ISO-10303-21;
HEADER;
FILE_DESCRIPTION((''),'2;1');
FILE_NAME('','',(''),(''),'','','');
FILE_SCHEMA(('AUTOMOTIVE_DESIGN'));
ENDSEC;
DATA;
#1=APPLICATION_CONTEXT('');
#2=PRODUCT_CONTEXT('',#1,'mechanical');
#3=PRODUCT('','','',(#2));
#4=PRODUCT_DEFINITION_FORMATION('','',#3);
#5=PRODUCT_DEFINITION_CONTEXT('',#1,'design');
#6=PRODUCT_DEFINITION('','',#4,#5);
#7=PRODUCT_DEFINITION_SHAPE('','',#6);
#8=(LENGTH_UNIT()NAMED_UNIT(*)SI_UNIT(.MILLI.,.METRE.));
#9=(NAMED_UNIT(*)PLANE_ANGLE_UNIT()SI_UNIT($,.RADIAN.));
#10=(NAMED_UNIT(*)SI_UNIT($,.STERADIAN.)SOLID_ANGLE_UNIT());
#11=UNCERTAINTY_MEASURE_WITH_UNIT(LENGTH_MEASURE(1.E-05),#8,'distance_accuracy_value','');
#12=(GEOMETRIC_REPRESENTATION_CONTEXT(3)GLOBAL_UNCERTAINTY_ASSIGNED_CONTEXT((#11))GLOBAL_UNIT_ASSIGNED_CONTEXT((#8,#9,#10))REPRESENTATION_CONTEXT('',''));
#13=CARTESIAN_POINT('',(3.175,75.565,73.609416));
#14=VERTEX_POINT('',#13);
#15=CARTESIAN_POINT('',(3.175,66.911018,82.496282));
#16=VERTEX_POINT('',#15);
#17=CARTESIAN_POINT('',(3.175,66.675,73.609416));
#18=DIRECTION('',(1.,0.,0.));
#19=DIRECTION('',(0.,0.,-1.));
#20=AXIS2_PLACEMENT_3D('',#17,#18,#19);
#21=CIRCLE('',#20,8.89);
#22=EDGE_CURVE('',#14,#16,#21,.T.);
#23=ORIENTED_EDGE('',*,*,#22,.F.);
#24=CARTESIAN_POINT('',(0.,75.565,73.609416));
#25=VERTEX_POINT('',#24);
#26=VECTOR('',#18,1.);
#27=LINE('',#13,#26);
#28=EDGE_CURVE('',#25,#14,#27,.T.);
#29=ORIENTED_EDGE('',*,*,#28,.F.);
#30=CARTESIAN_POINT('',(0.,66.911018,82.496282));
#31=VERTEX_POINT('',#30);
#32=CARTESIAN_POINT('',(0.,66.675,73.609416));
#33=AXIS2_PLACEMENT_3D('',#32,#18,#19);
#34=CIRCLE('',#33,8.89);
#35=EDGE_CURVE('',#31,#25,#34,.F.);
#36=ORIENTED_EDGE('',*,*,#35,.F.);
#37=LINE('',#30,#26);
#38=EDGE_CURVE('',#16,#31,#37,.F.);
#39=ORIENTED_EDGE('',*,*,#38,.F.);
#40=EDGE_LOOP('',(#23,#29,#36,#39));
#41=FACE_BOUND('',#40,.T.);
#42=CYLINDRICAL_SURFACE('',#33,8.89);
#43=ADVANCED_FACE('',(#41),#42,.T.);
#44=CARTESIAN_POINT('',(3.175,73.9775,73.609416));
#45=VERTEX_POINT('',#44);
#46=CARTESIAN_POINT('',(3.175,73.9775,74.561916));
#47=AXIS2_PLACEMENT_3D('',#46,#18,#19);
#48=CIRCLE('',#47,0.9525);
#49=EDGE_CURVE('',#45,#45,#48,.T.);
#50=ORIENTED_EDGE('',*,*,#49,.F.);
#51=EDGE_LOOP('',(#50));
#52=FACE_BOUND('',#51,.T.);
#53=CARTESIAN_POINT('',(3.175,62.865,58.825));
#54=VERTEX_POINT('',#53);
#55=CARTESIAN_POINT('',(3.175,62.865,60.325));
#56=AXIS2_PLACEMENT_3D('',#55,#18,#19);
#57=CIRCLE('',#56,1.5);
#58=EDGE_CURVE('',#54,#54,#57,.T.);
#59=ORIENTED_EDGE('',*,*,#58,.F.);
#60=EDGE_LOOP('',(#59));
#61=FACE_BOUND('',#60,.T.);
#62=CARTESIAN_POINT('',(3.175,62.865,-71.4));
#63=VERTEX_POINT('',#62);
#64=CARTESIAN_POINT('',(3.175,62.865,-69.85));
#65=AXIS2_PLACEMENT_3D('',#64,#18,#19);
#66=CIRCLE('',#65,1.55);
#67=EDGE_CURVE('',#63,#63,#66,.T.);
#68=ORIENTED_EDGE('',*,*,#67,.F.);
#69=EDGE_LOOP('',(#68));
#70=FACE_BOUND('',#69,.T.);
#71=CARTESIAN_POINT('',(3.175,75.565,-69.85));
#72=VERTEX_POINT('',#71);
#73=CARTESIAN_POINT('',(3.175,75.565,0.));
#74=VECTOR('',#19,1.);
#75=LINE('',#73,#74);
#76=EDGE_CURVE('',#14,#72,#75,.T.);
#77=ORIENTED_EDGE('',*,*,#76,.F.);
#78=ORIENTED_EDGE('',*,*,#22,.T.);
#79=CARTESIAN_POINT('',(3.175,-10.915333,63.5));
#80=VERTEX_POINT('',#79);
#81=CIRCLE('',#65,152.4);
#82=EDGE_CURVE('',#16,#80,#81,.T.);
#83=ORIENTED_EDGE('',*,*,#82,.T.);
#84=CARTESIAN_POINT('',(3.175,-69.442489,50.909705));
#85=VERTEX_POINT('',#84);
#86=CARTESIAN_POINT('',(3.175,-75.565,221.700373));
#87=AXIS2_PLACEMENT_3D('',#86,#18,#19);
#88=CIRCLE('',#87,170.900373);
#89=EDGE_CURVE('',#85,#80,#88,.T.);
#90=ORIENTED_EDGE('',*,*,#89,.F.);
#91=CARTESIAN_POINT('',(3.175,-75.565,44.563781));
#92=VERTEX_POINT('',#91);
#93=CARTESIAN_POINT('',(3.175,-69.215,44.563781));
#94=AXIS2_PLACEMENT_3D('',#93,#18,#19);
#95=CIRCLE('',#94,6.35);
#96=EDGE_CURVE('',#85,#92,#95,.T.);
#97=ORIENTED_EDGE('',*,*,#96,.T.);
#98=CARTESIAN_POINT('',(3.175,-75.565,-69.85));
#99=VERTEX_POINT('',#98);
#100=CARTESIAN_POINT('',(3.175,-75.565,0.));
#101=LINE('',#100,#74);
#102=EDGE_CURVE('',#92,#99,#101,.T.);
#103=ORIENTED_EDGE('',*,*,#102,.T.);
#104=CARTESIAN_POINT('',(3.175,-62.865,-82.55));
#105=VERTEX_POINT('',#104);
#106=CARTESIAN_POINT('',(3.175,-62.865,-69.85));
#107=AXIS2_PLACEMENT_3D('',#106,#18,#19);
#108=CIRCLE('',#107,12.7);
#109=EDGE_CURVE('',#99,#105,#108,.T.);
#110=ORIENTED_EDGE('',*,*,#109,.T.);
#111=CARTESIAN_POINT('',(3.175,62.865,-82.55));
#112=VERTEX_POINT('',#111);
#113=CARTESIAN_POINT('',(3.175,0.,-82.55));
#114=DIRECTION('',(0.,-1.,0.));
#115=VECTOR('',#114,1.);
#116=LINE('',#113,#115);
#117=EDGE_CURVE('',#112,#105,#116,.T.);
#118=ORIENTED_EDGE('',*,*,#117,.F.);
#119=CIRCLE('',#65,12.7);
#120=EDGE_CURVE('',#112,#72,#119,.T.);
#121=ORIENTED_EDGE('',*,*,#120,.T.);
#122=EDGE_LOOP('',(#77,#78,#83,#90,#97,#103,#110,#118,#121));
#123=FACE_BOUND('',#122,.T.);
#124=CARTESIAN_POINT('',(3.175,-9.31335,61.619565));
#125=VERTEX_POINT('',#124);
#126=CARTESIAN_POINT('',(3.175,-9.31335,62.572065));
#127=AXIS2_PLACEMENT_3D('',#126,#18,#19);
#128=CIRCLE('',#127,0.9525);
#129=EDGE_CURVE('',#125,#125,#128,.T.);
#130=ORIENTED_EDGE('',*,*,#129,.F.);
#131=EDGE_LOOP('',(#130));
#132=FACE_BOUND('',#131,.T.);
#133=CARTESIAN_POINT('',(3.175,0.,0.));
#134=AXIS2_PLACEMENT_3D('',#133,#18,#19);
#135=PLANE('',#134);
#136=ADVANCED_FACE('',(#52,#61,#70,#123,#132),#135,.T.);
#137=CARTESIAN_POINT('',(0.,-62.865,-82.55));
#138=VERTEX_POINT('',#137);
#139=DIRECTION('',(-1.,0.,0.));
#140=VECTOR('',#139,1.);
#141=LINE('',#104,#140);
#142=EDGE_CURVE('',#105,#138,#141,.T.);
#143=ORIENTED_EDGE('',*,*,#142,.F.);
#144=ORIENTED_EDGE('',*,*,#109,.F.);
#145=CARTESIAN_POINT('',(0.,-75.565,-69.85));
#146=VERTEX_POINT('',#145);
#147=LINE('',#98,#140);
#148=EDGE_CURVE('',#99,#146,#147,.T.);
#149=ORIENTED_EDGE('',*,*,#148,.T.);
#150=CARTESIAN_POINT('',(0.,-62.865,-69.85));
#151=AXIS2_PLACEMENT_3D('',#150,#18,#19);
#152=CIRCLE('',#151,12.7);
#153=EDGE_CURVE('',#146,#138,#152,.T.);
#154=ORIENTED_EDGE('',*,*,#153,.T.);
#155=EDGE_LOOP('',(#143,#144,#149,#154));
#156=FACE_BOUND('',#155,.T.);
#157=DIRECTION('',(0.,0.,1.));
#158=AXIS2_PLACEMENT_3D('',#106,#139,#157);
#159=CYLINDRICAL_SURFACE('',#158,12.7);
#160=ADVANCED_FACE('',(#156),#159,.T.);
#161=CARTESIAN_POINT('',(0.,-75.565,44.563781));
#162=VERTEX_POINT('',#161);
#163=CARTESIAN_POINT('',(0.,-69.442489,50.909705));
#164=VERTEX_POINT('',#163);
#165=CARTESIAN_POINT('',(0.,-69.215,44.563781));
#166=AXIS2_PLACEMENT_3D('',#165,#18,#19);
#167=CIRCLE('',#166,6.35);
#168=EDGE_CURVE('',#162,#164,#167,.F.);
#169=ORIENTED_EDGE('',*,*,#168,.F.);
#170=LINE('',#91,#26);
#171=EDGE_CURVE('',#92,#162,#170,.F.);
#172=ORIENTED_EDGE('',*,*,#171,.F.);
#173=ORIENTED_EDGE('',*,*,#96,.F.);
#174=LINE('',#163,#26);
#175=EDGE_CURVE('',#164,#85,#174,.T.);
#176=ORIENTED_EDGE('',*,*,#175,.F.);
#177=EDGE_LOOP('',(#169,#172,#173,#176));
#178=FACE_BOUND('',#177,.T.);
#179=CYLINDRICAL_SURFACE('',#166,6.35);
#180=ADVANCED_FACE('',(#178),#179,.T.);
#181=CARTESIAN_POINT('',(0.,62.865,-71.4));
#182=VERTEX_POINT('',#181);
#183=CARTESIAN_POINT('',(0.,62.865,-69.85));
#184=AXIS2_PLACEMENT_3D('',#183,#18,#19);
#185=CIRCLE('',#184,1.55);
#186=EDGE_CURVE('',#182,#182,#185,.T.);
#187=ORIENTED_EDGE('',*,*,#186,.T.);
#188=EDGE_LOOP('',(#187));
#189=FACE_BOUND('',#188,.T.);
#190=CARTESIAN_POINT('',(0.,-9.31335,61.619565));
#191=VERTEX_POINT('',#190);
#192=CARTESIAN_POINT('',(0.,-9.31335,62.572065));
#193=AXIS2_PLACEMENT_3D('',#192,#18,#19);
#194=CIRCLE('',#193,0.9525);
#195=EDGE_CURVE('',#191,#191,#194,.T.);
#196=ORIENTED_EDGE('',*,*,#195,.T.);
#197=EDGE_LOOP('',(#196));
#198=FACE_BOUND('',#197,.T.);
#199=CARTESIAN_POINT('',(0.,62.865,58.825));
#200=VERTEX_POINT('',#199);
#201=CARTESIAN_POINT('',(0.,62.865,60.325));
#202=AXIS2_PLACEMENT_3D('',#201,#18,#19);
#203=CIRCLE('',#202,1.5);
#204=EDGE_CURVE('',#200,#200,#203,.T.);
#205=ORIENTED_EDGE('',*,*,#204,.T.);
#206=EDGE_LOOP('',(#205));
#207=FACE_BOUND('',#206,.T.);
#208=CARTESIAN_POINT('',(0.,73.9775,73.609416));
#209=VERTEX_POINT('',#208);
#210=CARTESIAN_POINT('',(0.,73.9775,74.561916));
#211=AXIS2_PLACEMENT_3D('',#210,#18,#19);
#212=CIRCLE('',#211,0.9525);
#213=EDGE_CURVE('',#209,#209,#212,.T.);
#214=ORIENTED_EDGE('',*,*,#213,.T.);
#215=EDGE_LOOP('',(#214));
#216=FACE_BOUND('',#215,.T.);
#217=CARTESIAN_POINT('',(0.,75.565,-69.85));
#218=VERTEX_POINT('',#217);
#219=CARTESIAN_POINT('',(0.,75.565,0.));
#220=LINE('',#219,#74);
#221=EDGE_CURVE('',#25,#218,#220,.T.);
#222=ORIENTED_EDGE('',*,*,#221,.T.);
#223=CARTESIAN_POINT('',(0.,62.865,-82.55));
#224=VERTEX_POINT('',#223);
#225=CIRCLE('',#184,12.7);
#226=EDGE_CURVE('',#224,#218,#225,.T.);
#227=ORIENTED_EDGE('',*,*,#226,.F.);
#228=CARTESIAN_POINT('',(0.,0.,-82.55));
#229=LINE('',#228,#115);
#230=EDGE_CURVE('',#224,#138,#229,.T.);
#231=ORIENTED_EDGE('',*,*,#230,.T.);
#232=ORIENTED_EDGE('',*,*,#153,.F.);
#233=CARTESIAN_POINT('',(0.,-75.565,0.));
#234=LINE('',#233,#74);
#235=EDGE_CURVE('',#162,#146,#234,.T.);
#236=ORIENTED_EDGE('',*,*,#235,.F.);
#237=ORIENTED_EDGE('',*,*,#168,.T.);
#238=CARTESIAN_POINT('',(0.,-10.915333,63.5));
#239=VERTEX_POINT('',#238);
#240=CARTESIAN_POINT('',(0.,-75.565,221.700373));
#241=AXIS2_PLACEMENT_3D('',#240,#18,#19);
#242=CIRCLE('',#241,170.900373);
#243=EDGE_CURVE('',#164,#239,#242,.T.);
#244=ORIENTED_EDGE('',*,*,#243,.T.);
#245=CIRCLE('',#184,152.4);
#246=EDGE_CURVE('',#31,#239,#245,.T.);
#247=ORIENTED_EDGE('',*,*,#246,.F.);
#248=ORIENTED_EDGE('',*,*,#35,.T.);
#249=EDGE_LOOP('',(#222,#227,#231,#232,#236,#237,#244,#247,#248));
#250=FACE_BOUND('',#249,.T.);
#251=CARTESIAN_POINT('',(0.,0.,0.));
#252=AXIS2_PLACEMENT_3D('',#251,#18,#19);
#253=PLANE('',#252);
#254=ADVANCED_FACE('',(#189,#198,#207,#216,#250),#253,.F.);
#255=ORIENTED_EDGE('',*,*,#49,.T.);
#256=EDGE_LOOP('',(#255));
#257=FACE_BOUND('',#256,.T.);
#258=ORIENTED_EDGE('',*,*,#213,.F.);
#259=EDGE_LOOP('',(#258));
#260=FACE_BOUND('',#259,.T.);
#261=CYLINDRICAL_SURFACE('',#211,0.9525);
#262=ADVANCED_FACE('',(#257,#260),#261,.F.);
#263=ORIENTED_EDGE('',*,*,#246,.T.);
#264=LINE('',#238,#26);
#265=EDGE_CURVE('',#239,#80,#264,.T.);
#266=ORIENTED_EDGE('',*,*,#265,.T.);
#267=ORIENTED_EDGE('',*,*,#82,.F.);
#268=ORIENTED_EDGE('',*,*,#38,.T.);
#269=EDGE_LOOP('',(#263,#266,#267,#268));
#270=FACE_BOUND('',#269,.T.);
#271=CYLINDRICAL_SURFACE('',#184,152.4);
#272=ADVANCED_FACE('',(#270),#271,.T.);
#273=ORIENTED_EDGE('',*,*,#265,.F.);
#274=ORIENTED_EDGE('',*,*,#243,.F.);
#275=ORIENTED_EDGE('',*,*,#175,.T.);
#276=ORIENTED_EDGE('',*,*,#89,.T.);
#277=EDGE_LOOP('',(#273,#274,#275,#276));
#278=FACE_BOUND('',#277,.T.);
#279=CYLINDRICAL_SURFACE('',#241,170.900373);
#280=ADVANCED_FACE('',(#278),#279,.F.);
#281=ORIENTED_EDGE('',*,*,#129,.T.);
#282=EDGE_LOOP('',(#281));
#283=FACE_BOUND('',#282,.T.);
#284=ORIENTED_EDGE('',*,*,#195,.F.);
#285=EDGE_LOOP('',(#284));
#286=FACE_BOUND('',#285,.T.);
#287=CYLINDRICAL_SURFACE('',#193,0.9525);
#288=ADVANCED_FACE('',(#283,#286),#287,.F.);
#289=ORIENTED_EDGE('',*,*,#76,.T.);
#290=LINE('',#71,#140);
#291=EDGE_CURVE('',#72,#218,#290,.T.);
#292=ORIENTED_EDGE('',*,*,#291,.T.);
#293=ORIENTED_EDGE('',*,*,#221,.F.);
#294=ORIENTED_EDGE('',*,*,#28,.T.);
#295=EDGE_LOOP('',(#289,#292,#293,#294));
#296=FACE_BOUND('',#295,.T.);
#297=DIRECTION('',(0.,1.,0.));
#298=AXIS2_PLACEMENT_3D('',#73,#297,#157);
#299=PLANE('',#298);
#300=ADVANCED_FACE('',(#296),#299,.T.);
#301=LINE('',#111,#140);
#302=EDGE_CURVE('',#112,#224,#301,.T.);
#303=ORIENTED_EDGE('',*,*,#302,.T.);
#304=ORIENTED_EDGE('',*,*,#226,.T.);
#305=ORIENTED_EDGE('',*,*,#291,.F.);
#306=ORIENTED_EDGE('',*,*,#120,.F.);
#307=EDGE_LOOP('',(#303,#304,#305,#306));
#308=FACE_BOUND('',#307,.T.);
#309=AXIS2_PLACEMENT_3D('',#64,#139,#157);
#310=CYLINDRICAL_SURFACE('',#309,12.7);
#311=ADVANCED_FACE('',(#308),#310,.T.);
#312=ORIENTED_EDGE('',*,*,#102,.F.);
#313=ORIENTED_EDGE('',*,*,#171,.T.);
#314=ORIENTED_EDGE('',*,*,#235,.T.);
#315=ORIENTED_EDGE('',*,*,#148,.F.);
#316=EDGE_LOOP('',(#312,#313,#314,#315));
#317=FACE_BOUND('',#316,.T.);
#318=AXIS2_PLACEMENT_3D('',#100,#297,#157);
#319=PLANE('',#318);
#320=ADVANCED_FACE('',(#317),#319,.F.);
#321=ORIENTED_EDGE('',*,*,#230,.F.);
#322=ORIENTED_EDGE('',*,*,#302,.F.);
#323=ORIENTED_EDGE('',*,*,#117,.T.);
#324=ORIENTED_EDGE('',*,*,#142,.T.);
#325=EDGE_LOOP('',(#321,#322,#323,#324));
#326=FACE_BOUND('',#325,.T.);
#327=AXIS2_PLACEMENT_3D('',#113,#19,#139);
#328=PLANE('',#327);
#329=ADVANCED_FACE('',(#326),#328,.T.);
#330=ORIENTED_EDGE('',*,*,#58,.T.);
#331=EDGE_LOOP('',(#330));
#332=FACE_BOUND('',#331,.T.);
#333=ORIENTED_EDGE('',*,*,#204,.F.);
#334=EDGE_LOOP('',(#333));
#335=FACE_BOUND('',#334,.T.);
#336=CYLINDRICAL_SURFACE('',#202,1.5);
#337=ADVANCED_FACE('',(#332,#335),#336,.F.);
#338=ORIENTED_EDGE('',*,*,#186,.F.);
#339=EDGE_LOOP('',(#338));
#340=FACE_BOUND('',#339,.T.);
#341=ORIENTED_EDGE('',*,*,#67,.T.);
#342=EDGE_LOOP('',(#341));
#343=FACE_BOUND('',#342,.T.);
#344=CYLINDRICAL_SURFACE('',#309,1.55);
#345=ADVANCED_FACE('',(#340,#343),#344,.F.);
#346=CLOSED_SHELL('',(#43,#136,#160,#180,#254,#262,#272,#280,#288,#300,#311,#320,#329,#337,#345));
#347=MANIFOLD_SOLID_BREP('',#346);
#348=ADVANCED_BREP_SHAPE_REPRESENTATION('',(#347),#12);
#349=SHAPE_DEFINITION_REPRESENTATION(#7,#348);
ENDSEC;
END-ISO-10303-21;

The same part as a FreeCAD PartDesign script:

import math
import FreeCAD as App
import Part
import Sketcher
Q = App.Units.Quantity


def edges_at(feature, points):
    """Names of the edges that pass closest to the given points."""
    edges = feature.Shape.Edges
    near = lambda p: min(range(len(edges)), key=lambda i: edges[i].distToShape(Part.Vertex(*p))[0])
    return sorted({f"Edge{near(p) + 1}" for p in points})

doc = App.newDocument("Part")
body = doc.addObject("PartDesign::Body", "Body")

# Sketch on YZ plane
sketch1 = doc.addObject("Sketcher::SketchObject", "Sketch")
body.addObject(sketch1)
sketch1.AttachmentSupport = (doc.YZ_Plane, [""])
sketch1.MapMode = "FlatFace"
sketch1.addGeometry([
    Part.LineSegment(App.Vector(75.6, -69.8, 0), App.Vector(75.6, 82.5, 0)),  # 0
    Part.LineSegment(App.Vector(75.6, 82.5, 0), App.Vector(-75.6, 82.5, 0)),  # 1
    Part.LineSegment(App.Vector(-75.6, 82.5, 0), App.Vector(-75.6, -69.8, 0)),  # 2
    Part.ArcOfCircle(Part.Circle(App.Vector(-62.9, -69.8, 0), App.Vector(0, 0, 1), 12.7), math.radians(180), math.radians(270)),  # 3
    Part.LineSegment(App.Vector(-62.9, -82.5, 0), App.Vector(62.9, -82.5, 0)),  # 4
    Part.ArcOfCircle(Part.Circle(App.Vector(62.9, -69.8, 0), App.Vector(0, 0, 1), 12.7), math.radians(-90), math.radians(0)),  # 5
    Part.Circle(App.Vector(62.9, -69.8, 0), App.Vector(0, 0, 1), 1.6),  # 6
], False)
sketch1.addConstraint([
    Sketcher.Constraint("Coincident", 0, 2, 1, 1),
    Sketcher.Constraint("Coincident", 1, 2, 2, 1),
    Sketcher.Constraint("Tangent", 2, 2, 3, 1),
    Sketcher.Constraint("Tangent", 3, 2, 4, 1),
    Sketcher.Constraint("Tangent", 4, 2, 5, 1),
    Sketcher.Constraint("Tangent", 5, 2, 0, 1),
    Sketcher.Constraint("Vertical", 0),
    Sketcher.Constraint("Horizontal", 1),
    Sketcher.Constraint("Vertical", 2),
    Sketcher.Constraint("Horizontal", 4),
    Sketcher.Constraint("Coincident", 6, 3, 5, 3),
    Sketcher.Constraint("Equal", 3, 5),
    Sketcher.Constraint("Radius", 3, Q("0.5 in")),
    Sketcher.Constraint("DistanceY", 0, 1, 0, 2, Q("6 in")),
    Sketcher.Constraint("DistanceX", 1, 2, 1, 1, Q("5.95 in")),
    Sketcher.Constraint("Diameter", 6, 3.1),
    Sketcher.Constraint("DistanceY", 3, 3, -1, 1, Q("2.75 in")),
    Sketcher.Constraint("DistanceX", 3, 3, -1, 1, Q("2.475 in")),
])
pad1 = doc.addObject("PartDesign::Pad", "Pad")
body.addObject(pad1)
pad1.Profile = sketch1
pad1.Length = Q("0.125 in")

# Sketch on YZ plane
sketch2 = doc.addObject("Sketcher::SketchObject", "Sketch001")
body.addObject(sketch2)
sketch2.AttachmentSupport = (doc.YZ_Plane, [""])
sketch2.MapMode = "FlatFace"
sketch2.AttachmentOffset = App.Placement(App.Vector(0, 0, 0.125 * 25.4), App.Rotation())
sketch2.addGeometry([
    Part.ArcOfCircle(Part.Circle(App.Vector(-75.6, 221.7, 0), App.Vector(0, 0, 1), 170.9), math.radians(-90), math.radians(-68)),  # 0
    Part.ArcOfCircle(Part.Circle(App.Vector(62.9, -69.8, 0), App.Vector(0, 0, 1), 152.4), math.radians(90), math.radians(119)),  # 1
    Part.LineSegment(App.Vector(62.9, 82.5, 0), App.Vector(-75.6, 82.5, 0)),  # 2
    Part.LineSegment(App.Vector(-75.6, 82.5, 0), App.Vector(-75.6, 50.8, 0)),  # 3
    Part.LineSegment(App.Vector(75.6, 82.5, 0), App.Vector(62.9, 82.5, 0)),  # 4
    Part.ArcOfCircle(Part.Circle(App.Vector(62.9, -69.8, 0), App.Vector(0, 0, 1), 152.4), math.radians(85.22), math.radians(90)),  # 5
    Part.LineSegment(App.Vector(75.6, 82, 0), App.Vector(75.6, 82.5, 0)),  # 6
], False)
sketch2.addConstraint([
    Sketcher.Constraint("Coincident", 0, 2, 1, 2),
    Sketcher.Constraint("Tangent", 1, 1, 2, 1),
    Sketcher.Constraint("Coincident", 2, 2, 3, 1),
    Sketcher.Constraint("Coincident", 3, 2, 0, 1),
    Sketcher.Constraint("Tangent", 4, 2, 5, 2),
    Sketcher.Constraint("Coincident", 5, 1, 6, 1),
    Sketcher.Constraint("Coincident", 6, 2, 4, 1),
    Sketcher.Constraint("Horizontal", 2),
    Sketcher.Constraint("Vertical", 3),
    Sketcher.Constraint("Horizontal", 4),
    Sketcher.Constraint("Vertical", 6),
    Sketcher.Constraint("Coincident", 5, 3, 1, 3),
    Sketcher.Constraint("Equal", 1, 5),
    Sketcher.Constraint("Vertical", 0, 3, 2, 2),
    Sketcher.Constraint("Radius", 1, Q("6 in")),
    Sketcher.Constraint("DistanceX", 4, 2, 4, 1, Q("0.5 in")),
    Sketcher.Constraint("DistanceY", -1, 1, 3, 2, Q("2 in")),
    Sketcher.Constraint("DistanceX", 2, 2, 2, 1, Q("5.45 in")),
    Sketcher.Constraint("DistanceY", 3, 2, 3, 1, Q("1.25 in")),
    Sketcher.Constraint("DistanceY", -1, 1, 0, 2, Q("2.5 in")),
    Sketcher.Constraint("DistanceX", 0, 3, -1, 1, Q("2.975 in")),
])
pocket1 = doc.addObject("PartDesign::Pocket", "Pocket")
body.addObject(pocket1)
pocket1.Profile = sketch2
pocket1.Type = "ThroughAll"
doc.recompute()

fillet = doc.addObject("PartDesign::Fillet", "Fillet")
body.addObject(fillet)
fillet.Base = (pocket1, edges_at(pocket1, [(1.587, 75.565, 82.02)]))
fillet.Radius = Q("0.35 in")

# Sketch on YZ plane
sketch3 = doc.addObject("Sketcher::SketchObject", "Sketch002")
body.addObject(sketch3)
sketch3.AttachmentSupport = (doc.YZ_Plane, [""])
sketch3.MapMode = "FlatFace"
sketch3.AttachmentOffset = App.Placement(App.Vector(0, 0, 0.125 * 25.4), App.Rotation())
sketch3.addGeometry(Part.Circle(App.Vector(62.9, 60.3, 0), App.Vector(0, 0, 1), 1.5), False)
sketch3.addConstraint([
    Sketcher.Constraint("Diameter", 0, 3.0),
    Sketcher.Constraint("DistanceX", -1, 1, 0, 3, Q("2.475 in")),
    Sketcher.Constraint("DistanceY", -1, 1, 0, 3, Q("2.375 in")),
])
pocket2 = doc.addObject("PartDesign::Pocket", "Pocket001")
body.addObject(pocket2)
pocket2.Profile = sketch3
pocket2.Type = "ThroughAll"

# Sketch on YZ plane
sketch4 = doc.addObject("Sketcher::SketchObject", "Sketch003")
body.addObject(sketch4)
sketch4.AttachmentSupport = (doc.YZ_Plane, [""])
sketch4.MapMode = "FlatFace"
sketch4.AttachmentOffset = App.Placement(App.Vector(0, 0, 0.125 * 25.4), App.Rotation())
sketch4.addGeometry([
    Part.Circle(App.Vector(74, 74.6, 0), App.Vector(0, 0, 1), 1),
    Part.Circle(App.Vector(-9.3, 62.6, 0), App.Vector(0, 0, 1), 1),
], False)
sketch4.addConstraint([
    Sketcher.Constraint("Equal", 0, 1),
    Sketcher.Constraint("Diameter", 0, Q("0.075 in")),
    Sketcher.Constraint("DistanceX", -1, 1, 0, 3, Q("2.9125 in")),
    Sketcher.Constraint("DistanceX", 1, 3, -1, 1, 9.31335),
    Sketcher.Constraint("DistanceY", 1, 3, 0, 3, 11.989851),
    Sketcher.Constraint("DistanceY", -1, 1, 0, 3, 74.561916),
])
pocket3 = doc.addObject("PartDesign::Pocket", "Pocket002")
body.addObject(pocket3)
pocket3.Profile = sketch4
pocket3.Type = "ThroughAll"
doc.recompute()

fillet2 = doc.addObject("PartDesign::Fillet", "Fillet001")
body.addObject(fillet2)
fillet2.Base = (pocket3, edges_at(pocket3, [(1.587, -75.565, 50.8)]))
fillet2.Radius = Q("0.25 in")

doc.recompute()
